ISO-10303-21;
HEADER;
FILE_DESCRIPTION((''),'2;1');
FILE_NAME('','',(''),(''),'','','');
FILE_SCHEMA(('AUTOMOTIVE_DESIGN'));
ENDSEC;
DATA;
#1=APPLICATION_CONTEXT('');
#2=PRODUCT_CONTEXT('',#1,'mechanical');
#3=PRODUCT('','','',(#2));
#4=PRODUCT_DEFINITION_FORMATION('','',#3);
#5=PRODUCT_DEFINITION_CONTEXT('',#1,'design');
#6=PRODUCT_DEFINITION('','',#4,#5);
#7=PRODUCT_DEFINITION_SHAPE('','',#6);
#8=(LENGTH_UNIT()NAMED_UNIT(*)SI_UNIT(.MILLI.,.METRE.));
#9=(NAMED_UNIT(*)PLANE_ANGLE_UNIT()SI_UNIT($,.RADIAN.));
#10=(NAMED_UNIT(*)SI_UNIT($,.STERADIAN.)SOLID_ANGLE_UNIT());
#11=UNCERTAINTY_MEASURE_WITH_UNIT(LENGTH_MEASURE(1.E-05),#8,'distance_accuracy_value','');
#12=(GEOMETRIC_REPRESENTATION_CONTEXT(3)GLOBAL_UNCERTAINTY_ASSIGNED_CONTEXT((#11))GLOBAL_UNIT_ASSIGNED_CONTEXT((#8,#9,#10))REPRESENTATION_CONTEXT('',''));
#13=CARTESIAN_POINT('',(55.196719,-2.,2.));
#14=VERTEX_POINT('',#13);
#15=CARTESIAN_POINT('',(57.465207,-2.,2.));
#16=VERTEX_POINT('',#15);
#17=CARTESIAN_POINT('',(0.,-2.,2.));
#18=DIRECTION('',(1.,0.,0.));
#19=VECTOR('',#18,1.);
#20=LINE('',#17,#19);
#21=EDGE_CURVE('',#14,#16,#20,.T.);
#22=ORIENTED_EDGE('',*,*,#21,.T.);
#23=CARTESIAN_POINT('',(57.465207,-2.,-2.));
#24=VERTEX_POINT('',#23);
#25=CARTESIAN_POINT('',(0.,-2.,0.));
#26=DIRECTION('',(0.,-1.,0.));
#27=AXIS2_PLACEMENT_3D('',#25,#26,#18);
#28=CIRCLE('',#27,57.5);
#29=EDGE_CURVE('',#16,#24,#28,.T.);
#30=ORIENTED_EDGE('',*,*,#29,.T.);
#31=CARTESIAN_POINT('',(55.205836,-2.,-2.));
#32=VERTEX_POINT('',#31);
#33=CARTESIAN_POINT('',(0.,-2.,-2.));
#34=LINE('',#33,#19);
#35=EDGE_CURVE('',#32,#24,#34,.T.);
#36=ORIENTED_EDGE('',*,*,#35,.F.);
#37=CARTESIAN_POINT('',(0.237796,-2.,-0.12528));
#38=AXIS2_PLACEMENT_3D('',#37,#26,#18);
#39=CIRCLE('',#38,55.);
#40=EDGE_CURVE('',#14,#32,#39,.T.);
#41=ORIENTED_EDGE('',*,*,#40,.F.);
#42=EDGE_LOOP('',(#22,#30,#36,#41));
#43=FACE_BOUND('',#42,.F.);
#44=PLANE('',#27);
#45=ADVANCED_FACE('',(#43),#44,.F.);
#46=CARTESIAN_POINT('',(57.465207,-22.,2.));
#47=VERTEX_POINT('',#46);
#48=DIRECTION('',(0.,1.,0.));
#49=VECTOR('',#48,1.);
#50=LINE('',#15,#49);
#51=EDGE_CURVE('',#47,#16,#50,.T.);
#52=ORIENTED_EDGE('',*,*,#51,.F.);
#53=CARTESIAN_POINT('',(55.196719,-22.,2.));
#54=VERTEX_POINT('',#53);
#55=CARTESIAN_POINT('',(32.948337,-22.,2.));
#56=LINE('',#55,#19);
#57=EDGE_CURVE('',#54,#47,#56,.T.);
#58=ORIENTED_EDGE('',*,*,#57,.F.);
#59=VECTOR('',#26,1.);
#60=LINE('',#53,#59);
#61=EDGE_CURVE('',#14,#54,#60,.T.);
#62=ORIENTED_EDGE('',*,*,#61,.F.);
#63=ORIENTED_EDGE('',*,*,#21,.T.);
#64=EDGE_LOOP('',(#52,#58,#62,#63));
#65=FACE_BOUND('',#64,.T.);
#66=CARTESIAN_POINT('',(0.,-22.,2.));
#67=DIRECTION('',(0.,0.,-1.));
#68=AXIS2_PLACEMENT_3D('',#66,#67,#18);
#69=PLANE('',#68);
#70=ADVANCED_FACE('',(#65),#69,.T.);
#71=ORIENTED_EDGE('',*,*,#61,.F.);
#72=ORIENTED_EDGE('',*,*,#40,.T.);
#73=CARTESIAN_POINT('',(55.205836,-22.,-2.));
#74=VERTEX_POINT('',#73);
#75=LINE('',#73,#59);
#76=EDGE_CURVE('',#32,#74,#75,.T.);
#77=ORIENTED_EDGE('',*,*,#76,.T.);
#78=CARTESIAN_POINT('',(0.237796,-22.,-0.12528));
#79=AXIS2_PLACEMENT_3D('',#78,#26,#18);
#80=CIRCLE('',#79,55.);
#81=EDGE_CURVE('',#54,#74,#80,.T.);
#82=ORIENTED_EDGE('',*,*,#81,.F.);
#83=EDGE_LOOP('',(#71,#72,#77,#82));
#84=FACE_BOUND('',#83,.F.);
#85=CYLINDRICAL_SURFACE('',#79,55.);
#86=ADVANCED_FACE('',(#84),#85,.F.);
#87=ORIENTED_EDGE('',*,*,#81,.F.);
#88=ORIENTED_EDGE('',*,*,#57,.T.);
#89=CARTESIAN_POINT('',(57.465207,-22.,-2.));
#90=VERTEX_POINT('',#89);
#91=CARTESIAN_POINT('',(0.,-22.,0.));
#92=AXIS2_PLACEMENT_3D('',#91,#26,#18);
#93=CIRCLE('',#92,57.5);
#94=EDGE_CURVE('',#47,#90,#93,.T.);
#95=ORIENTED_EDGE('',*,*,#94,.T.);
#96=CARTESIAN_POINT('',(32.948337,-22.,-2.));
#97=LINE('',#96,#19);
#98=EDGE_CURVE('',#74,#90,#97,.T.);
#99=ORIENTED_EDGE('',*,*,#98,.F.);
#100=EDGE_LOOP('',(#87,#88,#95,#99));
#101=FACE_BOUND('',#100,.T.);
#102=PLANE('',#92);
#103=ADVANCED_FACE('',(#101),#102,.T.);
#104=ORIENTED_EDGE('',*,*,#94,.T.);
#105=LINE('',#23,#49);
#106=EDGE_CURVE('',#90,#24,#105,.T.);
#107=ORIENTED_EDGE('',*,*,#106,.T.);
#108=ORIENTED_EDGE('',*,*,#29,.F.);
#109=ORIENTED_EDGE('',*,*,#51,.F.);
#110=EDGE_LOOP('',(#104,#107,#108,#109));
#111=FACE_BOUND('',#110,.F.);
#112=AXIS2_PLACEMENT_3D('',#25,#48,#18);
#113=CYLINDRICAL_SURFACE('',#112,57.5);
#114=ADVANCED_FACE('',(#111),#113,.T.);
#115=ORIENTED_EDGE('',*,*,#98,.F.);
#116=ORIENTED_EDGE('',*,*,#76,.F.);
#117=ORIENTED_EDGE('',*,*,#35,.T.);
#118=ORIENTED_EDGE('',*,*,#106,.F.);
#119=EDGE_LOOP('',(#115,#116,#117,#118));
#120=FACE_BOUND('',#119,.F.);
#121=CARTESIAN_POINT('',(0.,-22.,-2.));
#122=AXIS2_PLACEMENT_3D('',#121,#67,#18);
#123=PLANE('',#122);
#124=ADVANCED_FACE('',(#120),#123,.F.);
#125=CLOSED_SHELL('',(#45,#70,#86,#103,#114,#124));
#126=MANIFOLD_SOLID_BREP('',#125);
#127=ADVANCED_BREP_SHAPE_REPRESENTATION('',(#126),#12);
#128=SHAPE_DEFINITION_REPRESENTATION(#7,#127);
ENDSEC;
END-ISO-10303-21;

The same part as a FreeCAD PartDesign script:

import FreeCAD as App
import Part
import Sketcher
from FreeCAD import Vector


def add_polygon(sketch, points):
    """Adds a closed chain of lines whose ends are joined by coincident constraints."""
    first, n = sketch.GeometryCount, len(points)
    for a, b in zip(points, points[1:] + points[:1]):
        sketch.addGeometry(Part.LineSegment(App.Vector(*a, 0), App.Vector(*b, 0)), False)
    for i in range(n):
        sketch.addConstraint(Sketcher.Constraint("Coincident", first + i, 2, first + (i + 1) % n, 1))

doc = App.newDocument("Part")
body = doc.addObject("PartDesign::Body", "Body")

sketch1 = body.newObject("Sketcher::SketchObject", "Sketch")
sketch1.AttachmentSupport = (doc.getObject("XZ_Plane"), [""])
sketch1.MapMode = "FlatFace"
sketch1.addGeometry(Part.Circle(Vector(0, 0, 0), Vector(0, 0, 1), 58), False)
sketch1.addConstraint(Sketcher.Constraint("Coincident", 0, 3, -1, 1))
sketch1.addConstraint(Sketcher.Constraint("Diameter", 0, 115.0))
pad1 = body.newObject("PartDesign::Pad", "Pad")
pad1.Profile = sketch1
pad1.Length = 20

sketch2 = body.newObject("Sketcher::SketchObject", "Sketch001")
sketch2.AttachmentSupport = (doc.getObject("XZ_Plane"), [""])
sketch2.MapMode = "FlatFace"
sketch2.AttachmentOffset = App.Placement(Vector(0, 0, 20), App.Rotation())
sketch2.addGeometry(Part.Circle(Vector(0, 0, 0), Vector(0, 0, 1), 55), False)
sketch2.addConstraint(Sketcher.Constraint("Diameter", 0, 110.0))
sketch2.addConstraint(Sketcher.Constraint("DistanceY", 0, 3, -1, 1, 0.12528))
sketch2.addConstraint(Sketcher.Constraint("DistanceX", -1, 1, 0, 3, 0.237796))
pocket1 = body.newObject("PartDesign::Pocket", "Pocket")
pocket1.Profile = sketch2
pocket1.Length = 25

sketch3 = body.newObject("Sketcher::SketchObject", "Sketch002")
sketch3.AttachmentSupport = (doc.getObject("XZ_Plane"), [""])
sketch3.MapMode = "FlatFace"
sketch3.AttachmentOffset = App.Placement(Vector(0, 0, 20), App.Rotation())
add_polygon(sketch3, [(0, 2), (0, -2), (65.9, -2), (65.9, 2)])
sketch3.addConstraint(Sketcher.Constraint("Vertical", 0))
sketch3.addConstraint(Sketcher.Constraint("Horizontal", 1))
sketch3.addConstraint(Sketcher.Constraint("Vertical", 2))
sketch3.addConstraint(Sketcher.Constraint("Horizontal", 3))
sketch3.addConstraint(Sketcher.Constraint("Symmetric", 0, 2, 3, 2, -1, 1))
sketch3.addConstraint(Sketcher.Constraint("DistanceY", 0, 2, 0, 1, 4.0))
sketch3.addConstraint(Sketcher.Constraint("DistanceX", 1, 1, 1, 2, 65.896674))
pocket2 = body.newObject("PartDesign::Pocket", "Pocket001")
pocket2.Profile = sketch3
pocket2.Length = 21
body2 = doc.addObject("PartDesign::Body", "Body001")
doc.recompute()

body.Placement = App.Placement(Vector(0, -2, 0), App.Rotation(Vector(0, 0, 1), 0))
boolean = body2.newObject("PartDesign::Boolean", "Boolean")
boolean.Type = "Fuse"
boolean.addObjects([body])

doc.recompute()
